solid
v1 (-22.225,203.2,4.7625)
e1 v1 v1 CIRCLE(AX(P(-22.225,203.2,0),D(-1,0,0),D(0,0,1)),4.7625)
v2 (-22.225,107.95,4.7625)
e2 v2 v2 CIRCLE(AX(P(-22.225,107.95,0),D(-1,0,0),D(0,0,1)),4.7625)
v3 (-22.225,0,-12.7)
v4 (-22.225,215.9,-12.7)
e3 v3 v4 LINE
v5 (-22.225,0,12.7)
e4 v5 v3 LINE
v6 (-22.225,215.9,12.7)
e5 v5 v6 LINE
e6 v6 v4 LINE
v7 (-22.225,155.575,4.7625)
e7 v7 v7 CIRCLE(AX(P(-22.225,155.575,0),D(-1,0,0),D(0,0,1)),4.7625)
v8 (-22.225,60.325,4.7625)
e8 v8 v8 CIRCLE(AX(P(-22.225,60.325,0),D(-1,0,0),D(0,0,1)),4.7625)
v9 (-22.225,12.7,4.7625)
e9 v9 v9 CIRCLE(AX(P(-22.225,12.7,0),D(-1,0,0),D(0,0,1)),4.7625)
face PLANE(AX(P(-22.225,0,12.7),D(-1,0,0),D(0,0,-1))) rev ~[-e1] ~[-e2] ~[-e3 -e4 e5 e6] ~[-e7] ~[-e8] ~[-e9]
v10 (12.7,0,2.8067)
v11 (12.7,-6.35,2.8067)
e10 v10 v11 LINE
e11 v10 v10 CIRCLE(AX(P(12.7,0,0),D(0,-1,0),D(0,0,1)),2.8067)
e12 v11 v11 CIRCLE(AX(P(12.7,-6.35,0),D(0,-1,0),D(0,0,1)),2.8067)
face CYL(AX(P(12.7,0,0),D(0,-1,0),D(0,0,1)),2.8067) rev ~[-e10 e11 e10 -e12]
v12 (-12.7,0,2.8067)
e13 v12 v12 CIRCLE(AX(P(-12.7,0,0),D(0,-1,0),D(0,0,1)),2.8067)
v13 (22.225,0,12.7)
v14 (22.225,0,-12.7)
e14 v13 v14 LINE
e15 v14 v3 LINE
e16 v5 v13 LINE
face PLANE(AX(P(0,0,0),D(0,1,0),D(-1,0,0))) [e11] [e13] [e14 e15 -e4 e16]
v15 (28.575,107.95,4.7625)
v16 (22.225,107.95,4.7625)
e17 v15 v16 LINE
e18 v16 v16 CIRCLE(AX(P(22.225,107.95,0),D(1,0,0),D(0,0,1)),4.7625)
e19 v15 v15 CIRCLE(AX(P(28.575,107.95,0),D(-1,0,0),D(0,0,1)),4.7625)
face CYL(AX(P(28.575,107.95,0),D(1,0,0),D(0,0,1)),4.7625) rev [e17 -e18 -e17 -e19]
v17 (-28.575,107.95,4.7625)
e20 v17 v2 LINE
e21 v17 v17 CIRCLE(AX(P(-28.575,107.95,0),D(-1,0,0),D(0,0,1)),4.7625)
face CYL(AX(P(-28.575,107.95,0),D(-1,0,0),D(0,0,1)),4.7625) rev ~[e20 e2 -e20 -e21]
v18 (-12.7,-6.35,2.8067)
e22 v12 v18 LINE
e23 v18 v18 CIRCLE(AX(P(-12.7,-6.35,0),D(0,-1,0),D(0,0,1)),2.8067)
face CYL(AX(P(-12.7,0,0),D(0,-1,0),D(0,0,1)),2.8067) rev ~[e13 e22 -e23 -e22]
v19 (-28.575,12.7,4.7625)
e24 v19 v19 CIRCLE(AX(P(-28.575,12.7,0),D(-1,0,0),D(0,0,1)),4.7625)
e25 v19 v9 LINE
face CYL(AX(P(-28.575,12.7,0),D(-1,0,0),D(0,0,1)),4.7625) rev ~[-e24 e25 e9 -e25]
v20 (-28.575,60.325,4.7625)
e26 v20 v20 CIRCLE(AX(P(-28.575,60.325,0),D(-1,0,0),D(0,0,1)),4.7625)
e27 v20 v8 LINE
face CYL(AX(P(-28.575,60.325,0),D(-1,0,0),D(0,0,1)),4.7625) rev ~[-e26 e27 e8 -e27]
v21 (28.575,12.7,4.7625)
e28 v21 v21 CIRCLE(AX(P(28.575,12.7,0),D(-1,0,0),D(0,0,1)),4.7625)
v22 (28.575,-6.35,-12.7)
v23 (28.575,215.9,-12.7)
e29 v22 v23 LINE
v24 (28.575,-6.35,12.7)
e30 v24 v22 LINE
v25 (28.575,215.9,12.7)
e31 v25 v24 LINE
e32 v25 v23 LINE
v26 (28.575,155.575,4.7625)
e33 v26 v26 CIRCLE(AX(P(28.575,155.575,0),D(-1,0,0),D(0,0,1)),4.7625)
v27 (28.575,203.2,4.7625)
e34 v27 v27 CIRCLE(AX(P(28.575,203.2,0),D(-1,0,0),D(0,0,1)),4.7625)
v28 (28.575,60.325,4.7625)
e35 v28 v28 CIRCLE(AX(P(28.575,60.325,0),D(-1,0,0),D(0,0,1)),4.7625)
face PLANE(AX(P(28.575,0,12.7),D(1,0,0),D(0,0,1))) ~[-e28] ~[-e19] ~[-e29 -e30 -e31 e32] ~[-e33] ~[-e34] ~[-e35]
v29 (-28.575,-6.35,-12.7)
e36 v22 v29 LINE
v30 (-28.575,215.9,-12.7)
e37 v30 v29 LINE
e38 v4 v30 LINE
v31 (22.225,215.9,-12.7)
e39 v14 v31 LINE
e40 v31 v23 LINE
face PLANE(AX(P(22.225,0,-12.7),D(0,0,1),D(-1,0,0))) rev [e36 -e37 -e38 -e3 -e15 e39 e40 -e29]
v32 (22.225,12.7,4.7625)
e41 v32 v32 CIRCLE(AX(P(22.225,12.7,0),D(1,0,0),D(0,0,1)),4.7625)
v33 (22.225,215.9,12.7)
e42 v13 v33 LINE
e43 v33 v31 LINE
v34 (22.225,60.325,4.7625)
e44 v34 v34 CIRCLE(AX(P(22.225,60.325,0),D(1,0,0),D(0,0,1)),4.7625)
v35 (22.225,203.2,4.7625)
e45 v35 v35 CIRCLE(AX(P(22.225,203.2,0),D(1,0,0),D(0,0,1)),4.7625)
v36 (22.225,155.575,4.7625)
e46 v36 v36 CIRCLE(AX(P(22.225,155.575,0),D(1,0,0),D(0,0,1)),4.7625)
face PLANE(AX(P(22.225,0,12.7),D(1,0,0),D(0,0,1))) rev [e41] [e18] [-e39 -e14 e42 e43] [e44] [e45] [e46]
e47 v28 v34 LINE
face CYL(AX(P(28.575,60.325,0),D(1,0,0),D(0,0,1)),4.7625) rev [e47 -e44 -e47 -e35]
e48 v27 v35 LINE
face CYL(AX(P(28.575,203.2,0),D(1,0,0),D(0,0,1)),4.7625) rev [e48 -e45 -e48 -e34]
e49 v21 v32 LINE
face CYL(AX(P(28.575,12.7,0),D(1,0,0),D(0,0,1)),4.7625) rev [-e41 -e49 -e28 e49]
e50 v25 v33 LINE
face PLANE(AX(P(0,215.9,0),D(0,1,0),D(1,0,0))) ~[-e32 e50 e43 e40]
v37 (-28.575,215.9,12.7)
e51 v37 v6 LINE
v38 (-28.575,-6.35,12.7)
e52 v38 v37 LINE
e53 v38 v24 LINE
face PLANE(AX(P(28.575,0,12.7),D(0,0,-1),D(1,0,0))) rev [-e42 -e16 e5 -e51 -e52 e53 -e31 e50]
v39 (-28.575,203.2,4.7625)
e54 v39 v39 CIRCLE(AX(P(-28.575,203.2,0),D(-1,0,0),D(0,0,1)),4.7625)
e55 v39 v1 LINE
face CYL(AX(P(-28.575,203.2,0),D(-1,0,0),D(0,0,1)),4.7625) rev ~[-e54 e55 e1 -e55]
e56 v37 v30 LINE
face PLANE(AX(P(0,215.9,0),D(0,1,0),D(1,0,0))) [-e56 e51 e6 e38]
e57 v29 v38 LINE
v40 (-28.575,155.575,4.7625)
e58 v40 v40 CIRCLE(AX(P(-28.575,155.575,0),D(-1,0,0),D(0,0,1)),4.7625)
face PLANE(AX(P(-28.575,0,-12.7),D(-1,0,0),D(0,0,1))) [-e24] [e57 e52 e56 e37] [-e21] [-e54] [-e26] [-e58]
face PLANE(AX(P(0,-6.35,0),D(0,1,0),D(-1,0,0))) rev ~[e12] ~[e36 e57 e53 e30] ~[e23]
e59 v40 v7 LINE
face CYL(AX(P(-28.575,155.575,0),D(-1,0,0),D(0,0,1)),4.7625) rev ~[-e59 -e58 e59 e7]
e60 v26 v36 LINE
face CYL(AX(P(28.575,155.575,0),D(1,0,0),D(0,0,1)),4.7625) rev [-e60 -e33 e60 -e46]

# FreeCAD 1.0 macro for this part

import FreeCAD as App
import Part
import Sketcher
Q = App.Units.Quantity


def add_polygon(sketch, points):
    """Adds a closed chain of lines whose ends are joined by coincident constraints."""
    first, n = sketch.GeometryCount, len(points)
    for a, b in zip(points, points[1:] + points[:1]):
        sketch.addGeometry(Part.LineSegment(App.Vector(*a, 0), App.Vector(*b, 0)), False)
    for i in range(n):
        sketch.addConstraint(Sketcher.Constraint("Coincident", first + i, 2, first + (i + 1) % n, 1))

doc = App.newDocument("Part")
params = doc.addObject("Spreadsheet::Sheet", "Params")
for row, (alias, value) in enumerate([
    ("sketch1_height", "1 in"),
    ("sketch1_width", "2.25 in"),
    ("pad1_length", "0.25 in"),
    ("sketch2_width", "0.25 in"),
    ("sketch2_height", "1 in"),
    ("pad2_length", "8.5 in"),
    ("sketch3_diameter", "0.375 in"),
    ("sketch4_diameter", "0.221 in"),
    ("hole_diameter", "0.221 in"),
], start=1):
    params.set(f"A{row}", alias)
    params.set(f"B{row}", "=" + value)
    params.setAlias(f"B{row}", alias)

body = doc.addObject("PartDesign::Body", "Body")

# Sketch on XZ plane
sketch1 = doc.addObject("Sketcher::SketchObject", "Sketch")
body.addObject(sketch1)
sketch1.AttachmentSupport = (doc.XZ_Plane, [""])
sketch1.MapMode = "FlatFace"
add_polygon(sketch1, [(-29, -13), (-29, 13), (29, 13), (29, -13)])  # lines 0-3
sketch1.addConstraint([
    Sketcher.Constraint("Vertical", 0),
    Sketcher.Constraint("Horizontal", 1),
    Sketcher.Constraint("Vertical", 2),
    Sketcher.Constraint("Horizontal", 3),
    Sketcher.Constraint("Symmetric", 0, 2, 2, 2, -1, 1),
    Sketcher.Constraint("DistanceY", 0, 1, 0, 2, Q("1 in")),
    Sketcher.Constraint("DistanceX", 1, 1, 1, 2, Q("2.25 in")),
])
sketch1.setExpression("Constraints[9]", "Params.sketch1_height")
sketch1.setExpression("Constraints[10]", "Params.sketch1_width")
pad1 = doc.addObject("PartDesign::Pad", "Pad")
body.addObject(pad1)
pad1.Profile = sketch1
pad1.setExpression("Length", "Params.pad1_length")

# Sketch on XZ plane
sketch2 = doc.addObject("Sketcher::SketchObject", "Sketch001")
body.addObject(sketch2)
sketch2.AttachmentSupport = (doc.XZ_Plane, [""])
sketch2.MapMode = "FlatFace"
add_polygon(sketch2, [(-29, -13), (-29, 13), (-22, 13), (-22, -13)])  # lines 0-3
sketch2.addConstraint([
    Sketcher.Constraint("Vertical", 0),
    Sketcher.Constraint("Horizontal", 1),
    Sketcher.Constraint("Vertical", 2),
    Sketcher.Constraint("Horizontal", 3),
    Sketcher.Constraint("DistanceX", 1, 1, 1, 2, Q("0.25 in")),
    Sketcher.Constraint("DistanceY", 0, 1, 0, 2, Q("1 in")),
    Sketcher.Constraint("DistanceY", -1, 1, 0, 2, Q("0.5 in")),
    Sketcher.Constraint("DistanceX", 0, 2, -1, 1, Q("1.125 in")),
])
sketch2.setExpression("Constraints[8]", "Params.sketch2_width")
sketch2.setExpression("Constraints[9]", "Params.sketch2_height")
pad2 = doc.addObject("PartDesign::Pad", "Pad001")
body.addObject(pad2)
pad2.Profile = sketch2
pad2.setExpression("Length", "Params.pad2_length")
pad2.Reversed = True

# Sketch on YZ plane
sketch3 = doc.addObject("Sketcher::SketchObject", "Sketch002")
body.addObject(sketch3)
sketch3.AttachmentSupport = (doc.YZ_Plane, [""])
sketch3.MapMode = "FlatFace"
sketch3.AttachmentOffset = App.Placement(App.Vector(0, 0, -1.125 * 25.4), App.Rotation())
sketch3.addGeometry([
    Part.Circle(App.Vector(12.7, 0, 0), App.Vector(0, 0, 1), 4.8),  # 0
    Part.Circle(App.Vector(60.3, 0, 0), App.Vector(0, 0, 1), 4.8),  # 1
    Part.Circle(App.Vector(108, 0, 0), App.Vector(0, 0, 1), 4.8),  # 2
    Part.Circle(App.Vector(155.6, 0, 0), App.Vector(0, 0, 1), 4.8),  # 3
    Part.Circle(App.Vector(203.2, 0, 0), App.Vector(0, 0, 1), 4.8),  # 4
], False)
sketch3.addConstraint([
    Sketcher.Constraint("Equal", 0, 1),
    Sketcher.Constraint("Equal", 1, 2),
    Sketcher.Constraint("Equal", 2, 3),
    Sketcher.Constraint("Equal", 3, 4),
    Sketcher.Constraint("PointOnObject", 0, 3, -1),
    Sketcher.Constraint("PointOnObject", 1, 3, -1),
    Sketcher.Constraint("PointOnObject", 2, 3, -1),
    Sketcher.Constraint("PointOnObject", 3, 3, -1),
    Sketcher.Constraint("PointOnObject", 4, 3, -1),
    Sketcher.Constraint("Diameter", 0, Q("0.375 in")),
    Sketcher.Constraint("DistanceX", -1, 1, 0, 3, Q("0.5 in")),
    Sketcher.Constraint("DistanceX", -1, 1, 4, 3, Q("8 in")),
    Sketcher.Constraint("DistanceX", 0, 3, 1, 3, Q("1.875 in")),
    Sketcher.Constraint("DistanceX", 1, 3, 2, 3, Q("1.875 in")),
    Sketcher.Constraint("DistanceX", 2, 3, 3, 3, Q("1.875 in")),
])
sketch3.setExpression("Constraints[9]", "Params.sketch3_diameter")
pocket1 = doc.addObject("PartDesign::Pocket", "Pocket")
body.addObject(pocket1)
pocket1.Profile = sketch3
pocket1.Type = "ThroughAll"
pocket1.Reversed = True
doc.recompute()

mirrored = doc.addObject("PartDesign::Mirrored", "Mirrored")
body.addObject(mirrored)
mirrored.Originals = [pad2, pocket1]
mirrored.MirrorPlane = (doc.YZ_Plane, [""])
body.Tip = mirrored

# Sketch on XZ plane
sketch4 = doc.addObject("Sketcher::SketchObject", "Sketch003")
body.addObject(sketch4)
sketch4.AttachmentSupport = (doc.XZ_Plane, [""])
sketch4.MapMode = "FlatFace"
sketch4.addGeometry([
    Part.Circle(App.Vector(-12.7, 0, 0), App.Vector(0, 0, 1), 2.8),
    Part.Circle(App.Vector(12.7, 0, 0), App.Vector(0, 0, 1), 2.8),
], False)
sketch4.addConstraint([
    Sketcher.Constraint("Equal", 0, 1),
    Sketcher.Constraint("Symmetric", 0, 3, 1, 3, -1, 1),
    Sketcher.Constraint("PointOnObject", 0, 3, -1),
    Sketcher.Constraint("Diameter", 0, Q("0.221 in")),
    Sketcher.Constraint("DistanceX", 0, 3, 1, 3, Q("1 in")),
])
sketch4.setExpression("Constraints[3]", "Params.sketch4_diameter")
doc.recompute()
hole = doc.addObject("PartDesign::Hole", "Hole")
body.addObject(hole)
hole.Profile = sketch4
hole.ThreadType = "None"
hole.setExpression("Diameter", "Params.hole_diameter")
hole.DepthType = "ThroughAll"
hole.Reversed = True

doc.recompute()
